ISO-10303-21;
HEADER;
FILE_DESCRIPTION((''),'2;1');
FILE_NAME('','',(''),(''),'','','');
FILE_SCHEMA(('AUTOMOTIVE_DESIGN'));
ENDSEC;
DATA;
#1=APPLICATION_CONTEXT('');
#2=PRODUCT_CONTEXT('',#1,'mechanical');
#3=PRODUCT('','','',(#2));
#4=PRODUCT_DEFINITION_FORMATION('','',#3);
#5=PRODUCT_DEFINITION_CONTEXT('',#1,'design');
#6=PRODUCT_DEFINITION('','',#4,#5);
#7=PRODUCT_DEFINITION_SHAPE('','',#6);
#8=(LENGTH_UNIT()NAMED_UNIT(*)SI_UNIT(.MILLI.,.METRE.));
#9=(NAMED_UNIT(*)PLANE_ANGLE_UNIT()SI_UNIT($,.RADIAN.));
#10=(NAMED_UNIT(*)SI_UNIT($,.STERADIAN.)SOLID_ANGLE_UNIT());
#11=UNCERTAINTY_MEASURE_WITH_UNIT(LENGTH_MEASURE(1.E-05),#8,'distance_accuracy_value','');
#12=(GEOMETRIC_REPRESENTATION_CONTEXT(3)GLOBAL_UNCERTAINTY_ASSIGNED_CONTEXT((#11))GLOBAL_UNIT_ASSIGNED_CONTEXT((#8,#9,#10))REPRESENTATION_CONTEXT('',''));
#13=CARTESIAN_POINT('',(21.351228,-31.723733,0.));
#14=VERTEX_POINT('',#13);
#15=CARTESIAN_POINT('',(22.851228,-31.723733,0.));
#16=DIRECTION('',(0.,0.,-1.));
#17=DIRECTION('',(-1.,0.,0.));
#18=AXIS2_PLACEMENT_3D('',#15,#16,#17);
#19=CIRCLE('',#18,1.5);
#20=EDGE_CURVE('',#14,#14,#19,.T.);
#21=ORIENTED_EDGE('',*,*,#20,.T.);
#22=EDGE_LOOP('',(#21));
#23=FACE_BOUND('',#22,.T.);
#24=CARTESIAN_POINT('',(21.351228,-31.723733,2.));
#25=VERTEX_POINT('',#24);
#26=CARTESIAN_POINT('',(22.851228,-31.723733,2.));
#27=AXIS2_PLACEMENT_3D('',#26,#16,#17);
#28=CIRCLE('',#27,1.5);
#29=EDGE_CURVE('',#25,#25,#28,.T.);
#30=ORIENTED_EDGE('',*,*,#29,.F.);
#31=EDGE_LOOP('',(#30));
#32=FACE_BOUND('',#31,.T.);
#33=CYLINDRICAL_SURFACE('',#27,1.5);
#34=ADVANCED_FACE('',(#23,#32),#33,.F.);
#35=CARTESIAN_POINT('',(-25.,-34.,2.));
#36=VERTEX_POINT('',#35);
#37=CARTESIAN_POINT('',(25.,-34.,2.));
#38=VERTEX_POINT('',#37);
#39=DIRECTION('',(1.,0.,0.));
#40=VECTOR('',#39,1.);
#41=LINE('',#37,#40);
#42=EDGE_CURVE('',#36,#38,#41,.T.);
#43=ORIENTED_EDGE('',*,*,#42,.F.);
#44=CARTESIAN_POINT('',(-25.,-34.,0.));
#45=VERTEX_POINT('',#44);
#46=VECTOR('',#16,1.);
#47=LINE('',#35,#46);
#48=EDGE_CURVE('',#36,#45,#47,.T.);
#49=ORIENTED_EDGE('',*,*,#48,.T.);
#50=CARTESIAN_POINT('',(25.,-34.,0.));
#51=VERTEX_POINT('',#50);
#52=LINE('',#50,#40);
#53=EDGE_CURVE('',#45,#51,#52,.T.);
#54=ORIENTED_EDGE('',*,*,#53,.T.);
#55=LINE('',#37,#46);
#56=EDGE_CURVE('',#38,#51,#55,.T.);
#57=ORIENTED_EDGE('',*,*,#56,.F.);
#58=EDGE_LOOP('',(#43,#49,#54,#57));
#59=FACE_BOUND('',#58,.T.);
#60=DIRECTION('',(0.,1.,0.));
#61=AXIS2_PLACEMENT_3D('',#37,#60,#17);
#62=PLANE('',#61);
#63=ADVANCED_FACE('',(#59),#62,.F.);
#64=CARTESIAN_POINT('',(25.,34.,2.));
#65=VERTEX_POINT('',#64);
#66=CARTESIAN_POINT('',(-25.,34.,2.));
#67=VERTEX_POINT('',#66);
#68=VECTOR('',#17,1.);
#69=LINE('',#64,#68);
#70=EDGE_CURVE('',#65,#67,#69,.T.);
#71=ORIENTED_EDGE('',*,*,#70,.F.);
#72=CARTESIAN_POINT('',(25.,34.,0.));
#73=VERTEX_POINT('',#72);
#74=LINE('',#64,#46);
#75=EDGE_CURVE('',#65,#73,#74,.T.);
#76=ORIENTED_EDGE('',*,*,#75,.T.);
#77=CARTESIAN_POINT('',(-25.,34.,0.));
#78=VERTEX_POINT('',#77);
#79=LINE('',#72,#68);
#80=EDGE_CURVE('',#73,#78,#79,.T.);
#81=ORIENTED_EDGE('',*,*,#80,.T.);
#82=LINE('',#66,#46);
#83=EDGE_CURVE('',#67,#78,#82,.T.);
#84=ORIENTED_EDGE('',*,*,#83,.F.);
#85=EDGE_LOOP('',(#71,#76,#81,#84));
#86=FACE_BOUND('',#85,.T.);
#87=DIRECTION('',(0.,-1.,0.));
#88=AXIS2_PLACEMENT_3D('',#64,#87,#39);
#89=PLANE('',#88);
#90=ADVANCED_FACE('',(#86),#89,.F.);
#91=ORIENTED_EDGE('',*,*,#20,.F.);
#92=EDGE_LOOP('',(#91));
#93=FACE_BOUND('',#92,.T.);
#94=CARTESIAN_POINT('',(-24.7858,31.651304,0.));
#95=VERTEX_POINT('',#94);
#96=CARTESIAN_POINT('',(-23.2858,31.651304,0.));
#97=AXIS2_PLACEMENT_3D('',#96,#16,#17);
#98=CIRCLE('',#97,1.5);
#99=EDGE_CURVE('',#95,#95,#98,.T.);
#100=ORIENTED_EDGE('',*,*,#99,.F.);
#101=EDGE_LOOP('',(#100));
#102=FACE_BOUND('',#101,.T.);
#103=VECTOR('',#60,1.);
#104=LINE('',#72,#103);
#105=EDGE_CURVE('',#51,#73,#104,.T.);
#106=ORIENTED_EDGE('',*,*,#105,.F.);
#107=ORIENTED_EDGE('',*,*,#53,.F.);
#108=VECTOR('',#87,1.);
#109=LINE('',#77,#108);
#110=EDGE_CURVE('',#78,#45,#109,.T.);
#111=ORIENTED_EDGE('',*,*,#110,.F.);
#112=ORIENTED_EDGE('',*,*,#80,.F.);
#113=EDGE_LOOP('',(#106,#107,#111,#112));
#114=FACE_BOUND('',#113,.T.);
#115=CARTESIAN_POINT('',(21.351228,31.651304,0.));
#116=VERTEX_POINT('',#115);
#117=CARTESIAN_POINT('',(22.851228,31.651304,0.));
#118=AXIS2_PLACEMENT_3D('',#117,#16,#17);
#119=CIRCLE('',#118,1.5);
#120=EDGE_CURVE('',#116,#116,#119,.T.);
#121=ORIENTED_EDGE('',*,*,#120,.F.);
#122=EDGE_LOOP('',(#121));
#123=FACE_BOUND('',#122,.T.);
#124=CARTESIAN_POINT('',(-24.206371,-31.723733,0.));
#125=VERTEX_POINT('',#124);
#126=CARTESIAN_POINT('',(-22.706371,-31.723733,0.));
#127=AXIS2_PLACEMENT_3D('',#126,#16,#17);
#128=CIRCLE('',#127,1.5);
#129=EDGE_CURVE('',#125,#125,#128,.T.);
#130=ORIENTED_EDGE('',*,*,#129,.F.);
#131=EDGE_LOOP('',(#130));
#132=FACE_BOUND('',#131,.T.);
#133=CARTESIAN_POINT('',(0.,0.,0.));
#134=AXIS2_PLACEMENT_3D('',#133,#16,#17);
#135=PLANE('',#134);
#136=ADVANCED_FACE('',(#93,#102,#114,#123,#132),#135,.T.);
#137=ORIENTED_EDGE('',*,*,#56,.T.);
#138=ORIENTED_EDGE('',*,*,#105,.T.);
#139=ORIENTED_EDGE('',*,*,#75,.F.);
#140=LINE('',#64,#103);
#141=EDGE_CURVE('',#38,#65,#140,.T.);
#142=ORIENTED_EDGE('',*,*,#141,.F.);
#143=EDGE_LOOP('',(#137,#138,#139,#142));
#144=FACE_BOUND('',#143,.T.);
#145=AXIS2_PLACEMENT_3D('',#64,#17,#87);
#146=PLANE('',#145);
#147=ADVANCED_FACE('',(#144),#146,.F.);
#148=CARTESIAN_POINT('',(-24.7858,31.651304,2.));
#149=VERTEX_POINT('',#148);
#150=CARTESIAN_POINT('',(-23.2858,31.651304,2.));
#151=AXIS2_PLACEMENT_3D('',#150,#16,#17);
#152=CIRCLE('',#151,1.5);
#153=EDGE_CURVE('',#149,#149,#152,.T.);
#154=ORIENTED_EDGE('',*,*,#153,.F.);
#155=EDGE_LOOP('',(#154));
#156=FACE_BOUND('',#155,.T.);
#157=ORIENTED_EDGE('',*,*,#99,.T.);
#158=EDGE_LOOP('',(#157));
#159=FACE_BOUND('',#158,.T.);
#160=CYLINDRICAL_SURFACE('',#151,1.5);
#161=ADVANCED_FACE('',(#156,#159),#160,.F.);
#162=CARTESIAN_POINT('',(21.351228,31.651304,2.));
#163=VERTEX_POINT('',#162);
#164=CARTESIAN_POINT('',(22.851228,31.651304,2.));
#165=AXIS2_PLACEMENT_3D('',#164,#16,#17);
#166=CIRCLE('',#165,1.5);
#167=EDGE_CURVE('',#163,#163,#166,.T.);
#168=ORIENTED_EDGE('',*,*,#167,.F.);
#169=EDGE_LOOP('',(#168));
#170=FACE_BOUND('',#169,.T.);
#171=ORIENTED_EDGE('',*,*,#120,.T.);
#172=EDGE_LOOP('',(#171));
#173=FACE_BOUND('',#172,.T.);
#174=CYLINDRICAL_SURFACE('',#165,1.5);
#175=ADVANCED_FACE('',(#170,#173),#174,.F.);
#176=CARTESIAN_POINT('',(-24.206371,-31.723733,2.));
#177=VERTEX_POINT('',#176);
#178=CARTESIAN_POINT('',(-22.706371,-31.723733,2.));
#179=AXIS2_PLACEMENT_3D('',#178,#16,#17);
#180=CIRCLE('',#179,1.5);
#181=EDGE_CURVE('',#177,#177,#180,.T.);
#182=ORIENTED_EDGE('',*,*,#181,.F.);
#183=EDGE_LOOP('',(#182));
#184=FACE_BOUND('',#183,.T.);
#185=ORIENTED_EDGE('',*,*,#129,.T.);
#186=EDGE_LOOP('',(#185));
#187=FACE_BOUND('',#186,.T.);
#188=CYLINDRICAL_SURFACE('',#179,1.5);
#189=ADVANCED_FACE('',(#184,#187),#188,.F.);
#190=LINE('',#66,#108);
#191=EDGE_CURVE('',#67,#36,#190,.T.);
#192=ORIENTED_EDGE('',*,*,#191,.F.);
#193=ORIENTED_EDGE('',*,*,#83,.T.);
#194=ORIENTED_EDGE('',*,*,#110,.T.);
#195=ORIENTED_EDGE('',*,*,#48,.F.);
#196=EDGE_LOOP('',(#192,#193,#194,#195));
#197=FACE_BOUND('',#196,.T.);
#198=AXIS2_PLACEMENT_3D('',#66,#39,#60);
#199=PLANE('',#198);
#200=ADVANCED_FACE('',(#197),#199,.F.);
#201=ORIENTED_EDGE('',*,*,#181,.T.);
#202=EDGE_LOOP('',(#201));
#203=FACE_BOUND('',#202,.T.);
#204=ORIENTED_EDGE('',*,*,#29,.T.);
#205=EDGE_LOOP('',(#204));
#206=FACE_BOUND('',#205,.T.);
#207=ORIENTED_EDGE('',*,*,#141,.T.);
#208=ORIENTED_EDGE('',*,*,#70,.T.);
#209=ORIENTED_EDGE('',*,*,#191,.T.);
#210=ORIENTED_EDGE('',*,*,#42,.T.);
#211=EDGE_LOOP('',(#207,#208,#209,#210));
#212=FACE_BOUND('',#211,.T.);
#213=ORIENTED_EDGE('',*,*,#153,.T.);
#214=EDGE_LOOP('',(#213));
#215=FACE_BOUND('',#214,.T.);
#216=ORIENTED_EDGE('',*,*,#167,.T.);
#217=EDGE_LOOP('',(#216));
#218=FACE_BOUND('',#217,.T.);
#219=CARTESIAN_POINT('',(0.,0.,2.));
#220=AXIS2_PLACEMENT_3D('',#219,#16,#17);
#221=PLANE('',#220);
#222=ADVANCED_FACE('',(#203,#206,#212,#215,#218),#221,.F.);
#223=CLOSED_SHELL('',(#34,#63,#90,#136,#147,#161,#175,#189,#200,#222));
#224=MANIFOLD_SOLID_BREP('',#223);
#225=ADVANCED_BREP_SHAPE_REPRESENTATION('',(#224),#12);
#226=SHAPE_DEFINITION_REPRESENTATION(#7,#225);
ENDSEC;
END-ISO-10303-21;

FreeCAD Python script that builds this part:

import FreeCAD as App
import Part
import Sketcher

V = App.Vector
Q = App.Units.Quantity

doc = App.newDocument("Part")
body = doc.addObject("PartDesign::Body", "Body")

sketch1 = body.newObject("Sketcher::SketchObject", "Sketch")
sketch1.AttachmentSupport = (doc.getObject("XY_Plane"), [""])
sketch1.MapMode = "FlatFace"
sketch1.addGeometry([
    Part.LineSegment(V(-25, 34, 0), V(-25, -34, 0)),
    Part.LineSegment(V(-25, -34, 0), V(25, -34, 0)),
    Part.LineSegment(V(25, -34, 0), V(25, 34, 0)),
    Part.LineSegment(V(25, 34, 0), V(-25, 34, 0)),
], False)
sketch1.addConstraint([
    Sketcher.Constraint("Coincident", 0, 2, 1, 1),
    Sketcher.Constraint("Coincident", 1, 2, 2, 1),
    Sketcher.Constraint("Coincident", 2, 2, 3, 1),
    Sketcher.Constraint("Coincident", 3, 2, 0, 1),
    Sketcher.Constraint("Vertical", 0),
    Sketcher.Constraint("Horizontal", 1),
    Sketcher.Constraint("Vertical", 2),
    Sketcher.Constraint("Horizontal", 3),
    Sketcher.Constraint("Symmetric", 0, 2, 2, 2, -1, 1),
    Sketcher.Constraint("DistanceX", 1, 1, 1, 2, Q("50 mm")),
    Sketcher.Constraint("DistanceY", 0, 2, 0, 1, Q("68 mm")),
])
pad1 = body.newObject("PartDesign::Pad", "Pad")
pad1.Profile = sketch1
pad1.Length = 2

sketch2 = body.newObject("Sketcher::SketchObject", "Sketch001")
sketch2.AttachmentSupport = (doc.getObject("XY_Plane"), [""])
sketch2.MapMode = "FlatFace"
sketch2.addGeometry([
    Part.Circle(V(-23.3, 31.7, 0), V(0, 0, 1), 1.5),
    Part.Circle(V(22.9, 31.7, 0), V(0, 0, 1), 1.5),
    Part.Circle(V(22.9, -31.7, 0), V(0, 0, 1), 1.5),
    Part.Circle(V(-22.7, -31.7, 0), V(0, 0, 1), 1.5),
], False)
sketch2.addConstraint([
    Sketcher.Constraint("Equal", 0, 1),
    Sketcher.Constraint("Equal", 1, 2),
    Sketcher.Constraint("Equal", 2, 3),
    Sketcher.Constraint("Horizontal", 0, 3, 1, 3),
    Sketcher.Constraint("Horizontal", 2, 3, 3, 3),
    Sketcher.Constraint("Vertical", 1, 3, 2, 3),
    Sketcher.Constraint("Diameter", 0, Q("3 mm")),
    Sketcher.Constraint("DistanceX", 0, 3, -1, 1, Q("23.2858 mm")),
    Sketcher.Constraint("DistanceX", 3, 3, 2, 3, Q("45.557598 mm")),
    Sketcher.Constraint("DistanceX", 3, 3, -1, 1, Q("22.706371 mm")),
    Sketcher.Constraint("DistanceY", -1, 1, 0, 3, Q("31.651304 mm")),
    Sketcher.Constraint("DistanceY", 2, 3, -1, 1, Q("31.723733 mm")),
])
pocket1 = body.newObject("PartDesign::Pocket", "Pocket")
pocket1.Profile = sketch2
pocket1.Length = 2
pocket1.Reversed = True

doc.recompute()
